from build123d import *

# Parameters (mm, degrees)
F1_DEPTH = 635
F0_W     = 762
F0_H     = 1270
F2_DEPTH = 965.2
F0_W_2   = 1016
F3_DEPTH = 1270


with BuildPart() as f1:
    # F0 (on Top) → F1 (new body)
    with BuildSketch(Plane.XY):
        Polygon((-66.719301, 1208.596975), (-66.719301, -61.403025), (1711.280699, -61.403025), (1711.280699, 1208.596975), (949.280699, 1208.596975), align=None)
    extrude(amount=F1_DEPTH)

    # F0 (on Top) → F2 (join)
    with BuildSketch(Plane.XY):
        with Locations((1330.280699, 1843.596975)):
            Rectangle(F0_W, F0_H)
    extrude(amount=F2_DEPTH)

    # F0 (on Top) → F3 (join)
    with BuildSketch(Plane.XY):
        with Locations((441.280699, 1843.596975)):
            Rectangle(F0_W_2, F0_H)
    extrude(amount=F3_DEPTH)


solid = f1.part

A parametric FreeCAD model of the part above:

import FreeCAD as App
import Part
import Sketcher
from FreeCAD import Vector
Q = App.Units.Quantity

doc = App.newDocument("Part")
body = doc.addObject("PartDesign::Body", "Body")

# Sketch on XY plane
sketch1 = body.newObject("Sketcher::SketchObject", "Sketch")
sketch1.AttachmentSupport = (doc.getObject("XY_Plane"), [""])
sketch1.MapMode = "FlatFace"
sketch1.addGeometry([
    Part.LineSegment(Vector(-67, 1209, 0), Vector(-67, -61, 0)),
    Part.LineSegment(Vector(-67, -61, 0), Vector(1711, -61, 0)),
    Part.LineSegment(Vector(1711, -61, 0), Vector(1711, 1209, 0)),
    Part.LineSegment(Vector(1711, 1209, 0), Vector(-67, 1209, 0)),
], False)
sketch1.addConstraint([
    Sketcher.Constraint("Coincident", 0, 2, 1, 1),
    Sketcher.Constraint("Coincident", 1, 2, 2, 1),
    Sketcher.Constraint("Coincident", 2, 2, 3, 1),
    Sketcher.Constraint("Coincident", 3, 2, 0, 1),
    Sketcher.Constraint("Vertical", 0),
    Sketcher.Constraint("Horizontal", 1),
    Sketcher.Constraint("Vertical", 2),
    Sketcher.Constraint("Horizontal", 3),
    Sketcher.Constraint("DistanceX", 1, 1, 1, 2, Q("70 in")),
    Sketcher.Constraint("DistanceY", 0, 2, 0, 1, Q("50 in")),
    Sketcher.Constraint("DistanceX", 0, 2, -1, 1, 66.719301),
    Sketcher.Constraint("DistanceY", 0, 2, -1, 1, 61.403025),
])
pad1 = body.newObject("PartDesign::Pad", "Pad")
pad1.Profile = sketch1
pad1.Length = Q("25 in")

# Sketch on XY plane
sketch2 = body.newObject("Sketcher::SketchObject", "Sketch001")
sketch2.AttachmentSupport = (doc.getObject("XY_Plane"), [""])
sketch2.MapMode = "FlatFace"
sketch2.addGeometry([
    Part.LineSegment(Vector(949, 2479, 0), Vector(949, 1209, 0)),
    Part.LineSegment(Vector(949, 1209, 0), Vector(1711, 1209, 0)),
    Part.LineSegment(Vector(1711, 1209, 0), Vector(1711, 2479, 0)),
    Part.LineSegment(Vector(1711, 2479, 0), Vector(949, 2479, 0)),
], False)
sketch2.addConstraint([
    Sketcher.Constraint("Coincident", 0, 2, 1, 1),
    Sketcher.Constraint("Coincident", 1, 2, 2, 1),
    Sketcher.Constraint("Coincident", 2, 2, 3, 1),
    Sketcher.Constraint("Coincident", 3, 2, 0, 1),
    Sketcher.Constraint("Vertical", 0),
    Sketcher.Constraint("Horizontal", 1),
    Sketcher.Constraint("Vertical", 2),
    Sketcher.Constraint("Horizontal", 3),
    Sketcher.Constraint("DistanceX", 1, 1, 1, 2, Q("30 in")),
    Sketcher.Constraint("DistanceY", 0, 2, 0, 1, Q("50 in")),
    Sketcher.Constraint("DistanceX", -1, 1, 0, 2, 949.280699),
    Sketcher.Constraint("DistanceY", -1, 1, 0, 2, 1208.596975),
])
pad2 = body.newObject("PartDesign::Pad", "Pad001")
pad2.Profile = sketch2
pad2.Length = Q("38 in")

# Sketch on XY plane
sketch3 = body.newObject("Sketcher::SketchObject", "Sketch002")
sketch3.AttachmentSupport = (doc.getObject("XY_Plane"), [""])
sketch3.MapMode = "FlatFace"
sketch3.addGeometry([
    Part.LineSegment(Vector(-67, 2479, 0), Vector(-67, 1209, 0)),
    Part.LineSegment(Vector(-67, 1209, 0), Vector(949, 1209, 0)),
    Part.LineSegment(Vector(949, 1209, 0), Vector(949, 2479, 0)),
    Part.LineSegment(Vector(949, 2479, 0), Vector(-67, 2479, 0)),
], False)
sketch3.addConstraint([
    Sketcher.Constraint("Coincident", 0, 2, 1, 1),
    Sketcher.Constraint("Coincident", 1, 2, 2, 1),
    Sketcher.Constraint("Coincident", 2, 2, 3, 1),
    Sketcher.Constraint("Coincident", 3, 2, 0, 1),
    Sketcher.Constraint("Vertical", 0),
    Sketcher.Constraint("Horizontal", 1),
    Sketcher.Constraint("Vertical", 2),
    Sketcher.Constraint("Horizontal", 3),
    Sketcher.Constraint("DistanceX", 1, 1, 1, 2, Q("40 in")),
    Sketcher.Constraint("DistanceY", 0, 2, 0, 1, Q("50 in")),
    Sketcher.Constraint("DistanceX", 0, 2, -1, 1, 66.719301),
    Sketcher.Constraint("DistanceY", -1, 1, 0, 2, 1208.596975),
])
pad3 = body.newObject("PartDesign::Pad", "Pad002")
pad3.Profile = sketch3
pad3.Length = Q("50 in")

doc.recompute()
